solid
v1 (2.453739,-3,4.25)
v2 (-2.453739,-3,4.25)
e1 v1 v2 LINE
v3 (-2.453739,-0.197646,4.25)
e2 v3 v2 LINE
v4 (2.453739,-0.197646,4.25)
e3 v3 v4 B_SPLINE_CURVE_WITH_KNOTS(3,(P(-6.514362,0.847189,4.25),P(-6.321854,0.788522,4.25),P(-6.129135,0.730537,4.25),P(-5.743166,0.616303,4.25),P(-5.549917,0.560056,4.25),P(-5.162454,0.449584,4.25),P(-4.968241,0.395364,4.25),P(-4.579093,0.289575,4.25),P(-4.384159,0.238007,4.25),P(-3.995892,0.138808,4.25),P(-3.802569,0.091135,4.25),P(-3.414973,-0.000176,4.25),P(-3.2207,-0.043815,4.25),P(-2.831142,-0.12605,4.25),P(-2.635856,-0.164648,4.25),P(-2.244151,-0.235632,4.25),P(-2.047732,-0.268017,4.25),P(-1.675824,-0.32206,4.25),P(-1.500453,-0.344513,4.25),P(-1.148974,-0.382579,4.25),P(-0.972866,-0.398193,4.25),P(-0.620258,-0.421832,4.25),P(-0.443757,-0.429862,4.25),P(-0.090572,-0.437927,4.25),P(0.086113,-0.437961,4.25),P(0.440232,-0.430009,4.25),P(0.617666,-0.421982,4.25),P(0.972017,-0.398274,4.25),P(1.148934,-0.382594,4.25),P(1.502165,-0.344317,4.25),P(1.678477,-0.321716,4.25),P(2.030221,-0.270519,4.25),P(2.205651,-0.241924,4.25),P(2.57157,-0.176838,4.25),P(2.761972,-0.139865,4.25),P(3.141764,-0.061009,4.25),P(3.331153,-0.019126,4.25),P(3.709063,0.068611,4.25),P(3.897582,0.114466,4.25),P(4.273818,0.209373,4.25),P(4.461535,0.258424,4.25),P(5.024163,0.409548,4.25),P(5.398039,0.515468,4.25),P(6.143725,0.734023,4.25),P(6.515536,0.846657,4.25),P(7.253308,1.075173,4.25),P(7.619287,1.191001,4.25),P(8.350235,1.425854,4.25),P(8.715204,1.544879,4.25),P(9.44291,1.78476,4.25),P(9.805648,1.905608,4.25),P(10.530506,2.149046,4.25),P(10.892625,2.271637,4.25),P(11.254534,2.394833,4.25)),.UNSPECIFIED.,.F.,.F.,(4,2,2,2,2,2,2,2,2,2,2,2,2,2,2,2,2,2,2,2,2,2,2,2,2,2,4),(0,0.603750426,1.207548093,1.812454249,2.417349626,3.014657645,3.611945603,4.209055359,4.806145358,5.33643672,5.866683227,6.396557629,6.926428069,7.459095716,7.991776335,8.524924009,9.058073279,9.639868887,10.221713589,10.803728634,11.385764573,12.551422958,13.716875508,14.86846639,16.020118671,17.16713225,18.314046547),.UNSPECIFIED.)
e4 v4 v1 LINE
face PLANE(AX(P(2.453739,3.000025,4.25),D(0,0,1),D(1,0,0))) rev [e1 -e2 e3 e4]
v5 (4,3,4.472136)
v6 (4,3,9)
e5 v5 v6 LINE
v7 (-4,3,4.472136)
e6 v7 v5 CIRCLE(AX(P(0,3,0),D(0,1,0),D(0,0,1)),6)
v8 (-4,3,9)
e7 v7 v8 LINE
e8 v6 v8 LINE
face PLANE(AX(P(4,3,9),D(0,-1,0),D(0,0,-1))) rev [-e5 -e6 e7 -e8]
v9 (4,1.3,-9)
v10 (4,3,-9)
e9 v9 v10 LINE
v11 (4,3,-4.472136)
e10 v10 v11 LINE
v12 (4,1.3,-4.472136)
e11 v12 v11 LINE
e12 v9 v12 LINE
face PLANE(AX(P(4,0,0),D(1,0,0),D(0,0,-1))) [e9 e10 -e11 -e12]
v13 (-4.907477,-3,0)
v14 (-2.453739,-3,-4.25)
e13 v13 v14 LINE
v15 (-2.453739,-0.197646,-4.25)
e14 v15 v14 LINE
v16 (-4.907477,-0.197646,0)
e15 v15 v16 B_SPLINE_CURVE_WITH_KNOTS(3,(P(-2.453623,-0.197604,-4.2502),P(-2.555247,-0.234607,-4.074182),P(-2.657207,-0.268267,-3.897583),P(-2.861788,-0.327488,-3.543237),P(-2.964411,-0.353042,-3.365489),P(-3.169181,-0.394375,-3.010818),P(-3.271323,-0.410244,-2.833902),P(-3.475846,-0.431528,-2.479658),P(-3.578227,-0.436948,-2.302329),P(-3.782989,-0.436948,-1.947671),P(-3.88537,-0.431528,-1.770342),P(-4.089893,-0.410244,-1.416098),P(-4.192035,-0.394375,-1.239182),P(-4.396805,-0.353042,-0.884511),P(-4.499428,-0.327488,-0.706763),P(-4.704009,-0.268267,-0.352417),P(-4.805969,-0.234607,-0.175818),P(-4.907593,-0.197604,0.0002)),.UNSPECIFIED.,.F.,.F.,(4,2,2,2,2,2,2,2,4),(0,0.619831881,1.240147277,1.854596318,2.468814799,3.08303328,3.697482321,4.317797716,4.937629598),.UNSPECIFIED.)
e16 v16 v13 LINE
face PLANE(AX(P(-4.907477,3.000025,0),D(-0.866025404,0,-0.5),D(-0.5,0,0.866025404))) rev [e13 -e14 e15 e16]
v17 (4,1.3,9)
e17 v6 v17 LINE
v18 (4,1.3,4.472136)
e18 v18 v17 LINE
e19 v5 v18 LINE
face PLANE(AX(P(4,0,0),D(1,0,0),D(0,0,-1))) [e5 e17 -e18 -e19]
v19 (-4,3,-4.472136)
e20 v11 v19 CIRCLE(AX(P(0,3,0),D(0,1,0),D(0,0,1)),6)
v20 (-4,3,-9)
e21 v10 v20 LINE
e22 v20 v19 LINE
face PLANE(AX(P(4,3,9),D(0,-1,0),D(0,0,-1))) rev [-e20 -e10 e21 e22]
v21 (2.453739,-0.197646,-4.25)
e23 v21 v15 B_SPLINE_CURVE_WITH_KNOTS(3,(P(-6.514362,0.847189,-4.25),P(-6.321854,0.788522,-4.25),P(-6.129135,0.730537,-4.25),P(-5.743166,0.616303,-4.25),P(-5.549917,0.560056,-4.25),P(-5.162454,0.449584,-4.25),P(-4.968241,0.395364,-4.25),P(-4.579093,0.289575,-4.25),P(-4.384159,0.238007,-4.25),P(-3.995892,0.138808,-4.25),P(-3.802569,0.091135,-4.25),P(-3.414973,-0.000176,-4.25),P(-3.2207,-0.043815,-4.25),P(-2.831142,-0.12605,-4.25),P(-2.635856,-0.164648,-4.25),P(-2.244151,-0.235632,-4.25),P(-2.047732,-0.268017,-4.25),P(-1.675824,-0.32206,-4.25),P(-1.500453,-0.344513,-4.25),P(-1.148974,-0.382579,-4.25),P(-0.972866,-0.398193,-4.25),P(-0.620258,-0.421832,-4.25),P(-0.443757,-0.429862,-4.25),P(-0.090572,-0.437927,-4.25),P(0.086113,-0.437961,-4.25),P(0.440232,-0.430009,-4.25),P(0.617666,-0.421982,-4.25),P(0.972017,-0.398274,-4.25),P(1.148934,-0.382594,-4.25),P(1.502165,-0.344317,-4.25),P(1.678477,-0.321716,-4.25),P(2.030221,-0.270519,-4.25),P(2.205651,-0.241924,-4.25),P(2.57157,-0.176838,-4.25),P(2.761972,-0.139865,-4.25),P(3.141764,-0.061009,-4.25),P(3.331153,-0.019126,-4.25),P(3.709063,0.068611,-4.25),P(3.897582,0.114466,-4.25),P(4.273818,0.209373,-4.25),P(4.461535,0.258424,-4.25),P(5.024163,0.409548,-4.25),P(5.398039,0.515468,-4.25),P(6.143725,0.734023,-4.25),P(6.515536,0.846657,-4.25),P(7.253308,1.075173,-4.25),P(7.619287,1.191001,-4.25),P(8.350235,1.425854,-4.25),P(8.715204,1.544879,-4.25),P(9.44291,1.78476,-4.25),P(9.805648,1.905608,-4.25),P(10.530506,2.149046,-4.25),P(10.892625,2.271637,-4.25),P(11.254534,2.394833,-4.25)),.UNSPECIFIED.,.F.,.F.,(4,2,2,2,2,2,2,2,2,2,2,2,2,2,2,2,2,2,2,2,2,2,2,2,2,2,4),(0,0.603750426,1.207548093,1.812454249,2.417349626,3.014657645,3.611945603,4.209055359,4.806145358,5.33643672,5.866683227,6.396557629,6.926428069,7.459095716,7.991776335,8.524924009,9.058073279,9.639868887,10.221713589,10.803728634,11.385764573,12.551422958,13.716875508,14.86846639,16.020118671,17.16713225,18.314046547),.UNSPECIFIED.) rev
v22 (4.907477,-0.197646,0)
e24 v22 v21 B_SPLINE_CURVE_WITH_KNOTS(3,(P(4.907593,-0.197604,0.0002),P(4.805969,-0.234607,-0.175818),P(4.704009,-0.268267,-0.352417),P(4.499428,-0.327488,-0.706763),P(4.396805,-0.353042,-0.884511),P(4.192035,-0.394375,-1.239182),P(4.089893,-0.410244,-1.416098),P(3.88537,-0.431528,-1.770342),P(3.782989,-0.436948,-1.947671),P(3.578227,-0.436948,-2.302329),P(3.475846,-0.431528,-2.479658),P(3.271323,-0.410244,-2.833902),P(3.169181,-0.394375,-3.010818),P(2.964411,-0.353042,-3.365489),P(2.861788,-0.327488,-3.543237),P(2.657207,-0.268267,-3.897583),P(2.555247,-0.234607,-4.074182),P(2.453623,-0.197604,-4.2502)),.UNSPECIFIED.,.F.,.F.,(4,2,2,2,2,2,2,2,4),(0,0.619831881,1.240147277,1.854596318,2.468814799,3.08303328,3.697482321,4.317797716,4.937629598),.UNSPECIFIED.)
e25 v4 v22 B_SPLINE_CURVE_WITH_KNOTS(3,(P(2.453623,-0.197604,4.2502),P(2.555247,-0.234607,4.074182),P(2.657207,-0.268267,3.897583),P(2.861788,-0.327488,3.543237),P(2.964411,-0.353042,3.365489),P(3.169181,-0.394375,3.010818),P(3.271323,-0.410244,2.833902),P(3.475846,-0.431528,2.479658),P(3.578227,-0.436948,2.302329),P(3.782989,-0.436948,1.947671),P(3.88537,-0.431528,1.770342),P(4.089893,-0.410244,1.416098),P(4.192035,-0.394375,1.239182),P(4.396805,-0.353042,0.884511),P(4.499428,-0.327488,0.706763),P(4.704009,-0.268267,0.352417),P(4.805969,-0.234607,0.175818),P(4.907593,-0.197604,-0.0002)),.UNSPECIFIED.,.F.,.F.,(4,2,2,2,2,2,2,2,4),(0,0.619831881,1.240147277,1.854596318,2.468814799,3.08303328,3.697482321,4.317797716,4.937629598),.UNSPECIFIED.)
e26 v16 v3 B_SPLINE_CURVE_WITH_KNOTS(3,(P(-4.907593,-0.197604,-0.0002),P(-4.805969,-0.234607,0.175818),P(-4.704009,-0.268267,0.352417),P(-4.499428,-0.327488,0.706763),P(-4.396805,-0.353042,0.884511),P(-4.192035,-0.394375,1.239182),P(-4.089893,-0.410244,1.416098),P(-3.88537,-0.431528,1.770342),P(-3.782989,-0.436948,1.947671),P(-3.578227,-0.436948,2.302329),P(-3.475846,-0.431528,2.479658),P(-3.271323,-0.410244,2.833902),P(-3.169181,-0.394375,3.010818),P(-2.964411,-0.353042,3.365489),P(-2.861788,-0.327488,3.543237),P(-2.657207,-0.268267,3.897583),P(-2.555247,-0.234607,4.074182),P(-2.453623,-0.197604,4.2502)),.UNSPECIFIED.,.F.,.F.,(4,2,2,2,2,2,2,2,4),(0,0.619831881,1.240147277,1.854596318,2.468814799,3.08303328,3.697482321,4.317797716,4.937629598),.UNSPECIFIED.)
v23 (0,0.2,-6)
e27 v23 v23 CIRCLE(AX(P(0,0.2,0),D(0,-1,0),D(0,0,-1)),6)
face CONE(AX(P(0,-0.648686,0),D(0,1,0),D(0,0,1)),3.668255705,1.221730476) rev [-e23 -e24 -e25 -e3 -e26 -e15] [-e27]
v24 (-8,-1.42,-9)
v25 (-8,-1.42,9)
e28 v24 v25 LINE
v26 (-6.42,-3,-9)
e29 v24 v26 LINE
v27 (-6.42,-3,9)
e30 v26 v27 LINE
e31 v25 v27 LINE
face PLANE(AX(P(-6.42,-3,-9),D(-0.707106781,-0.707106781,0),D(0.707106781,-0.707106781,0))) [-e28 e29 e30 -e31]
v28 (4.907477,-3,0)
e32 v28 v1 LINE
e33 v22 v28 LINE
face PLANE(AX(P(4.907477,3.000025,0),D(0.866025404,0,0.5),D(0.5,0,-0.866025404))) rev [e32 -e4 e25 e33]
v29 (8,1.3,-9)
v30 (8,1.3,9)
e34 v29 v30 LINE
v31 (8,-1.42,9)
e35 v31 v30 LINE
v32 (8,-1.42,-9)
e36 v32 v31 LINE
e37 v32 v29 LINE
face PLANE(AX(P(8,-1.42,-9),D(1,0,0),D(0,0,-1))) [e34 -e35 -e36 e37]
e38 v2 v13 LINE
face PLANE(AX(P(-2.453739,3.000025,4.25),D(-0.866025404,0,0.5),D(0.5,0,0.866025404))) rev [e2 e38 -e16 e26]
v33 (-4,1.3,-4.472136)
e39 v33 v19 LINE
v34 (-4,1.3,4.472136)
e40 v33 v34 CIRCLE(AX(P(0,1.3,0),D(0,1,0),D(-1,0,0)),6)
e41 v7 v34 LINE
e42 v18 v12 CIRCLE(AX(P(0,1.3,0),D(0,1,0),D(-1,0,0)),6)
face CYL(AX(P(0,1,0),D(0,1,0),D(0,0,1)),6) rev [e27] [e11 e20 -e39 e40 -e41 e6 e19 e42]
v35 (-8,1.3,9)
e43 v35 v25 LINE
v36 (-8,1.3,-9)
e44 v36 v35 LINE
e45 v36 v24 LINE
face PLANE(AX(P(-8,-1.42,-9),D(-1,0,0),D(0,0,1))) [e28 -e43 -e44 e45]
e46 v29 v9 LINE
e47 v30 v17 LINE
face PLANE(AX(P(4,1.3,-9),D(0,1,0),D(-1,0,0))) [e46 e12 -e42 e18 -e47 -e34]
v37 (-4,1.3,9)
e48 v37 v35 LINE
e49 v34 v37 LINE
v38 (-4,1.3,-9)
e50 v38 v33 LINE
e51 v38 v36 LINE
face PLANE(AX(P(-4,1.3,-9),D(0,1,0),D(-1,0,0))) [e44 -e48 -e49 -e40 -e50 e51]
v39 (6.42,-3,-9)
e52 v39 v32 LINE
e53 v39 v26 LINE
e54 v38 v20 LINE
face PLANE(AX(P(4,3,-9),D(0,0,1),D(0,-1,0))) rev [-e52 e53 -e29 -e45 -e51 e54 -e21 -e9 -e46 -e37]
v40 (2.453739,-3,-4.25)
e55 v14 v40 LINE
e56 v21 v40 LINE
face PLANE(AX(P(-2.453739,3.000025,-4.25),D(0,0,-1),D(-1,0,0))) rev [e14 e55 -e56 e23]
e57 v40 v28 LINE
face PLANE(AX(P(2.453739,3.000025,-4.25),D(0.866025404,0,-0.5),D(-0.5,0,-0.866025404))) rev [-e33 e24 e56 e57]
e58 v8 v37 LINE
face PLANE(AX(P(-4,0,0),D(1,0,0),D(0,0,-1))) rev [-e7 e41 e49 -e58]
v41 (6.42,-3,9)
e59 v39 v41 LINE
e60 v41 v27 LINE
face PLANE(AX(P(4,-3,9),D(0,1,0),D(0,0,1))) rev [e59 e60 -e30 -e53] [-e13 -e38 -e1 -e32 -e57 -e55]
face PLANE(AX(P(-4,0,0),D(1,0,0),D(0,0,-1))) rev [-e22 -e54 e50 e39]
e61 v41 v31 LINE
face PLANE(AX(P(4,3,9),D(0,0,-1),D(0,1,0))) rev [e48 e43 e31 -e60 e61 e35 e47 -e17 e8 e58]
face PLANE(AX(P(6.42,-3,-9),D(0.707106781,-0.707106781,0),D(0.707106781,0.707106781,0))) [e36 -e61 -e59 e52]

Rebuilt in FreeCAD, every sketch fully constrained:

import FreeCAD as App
import Part
import Sketcher
from FreeCAD import Vector
Q = App.Units.Quantity

doc = App.newDocument("Part")
body = doc.addObject("PartDesign::Body", "Body")

# Sketch on YZ plane
sketch1 = body.newObject("Sketcher::SketchObject", "Sketch")
sketch1.AttachmentSupport = (doc.getObject("YZ_Plane"), [""])
sketch1.MapMode = "FlatFace"
sketch1.addGeometry([
    Part.LineSegment(Vector(3, 9, 0), Vector(-3, 9, 0)),
    Part.LineSegment(Vector(-3, 9, 0), Vector(-3, -9, 0)),
    Part.LineSegment(Vector(-3, -9, 0), Vector(3, -9, 0)),
    Part.LineSegment(Vector(3, -9, 0), Vector(3, 9, 0)),
], False)
sketch1.addConstraint([
    Sketcher.Constraint("Coincident", 0, 2, 1, 1),
    Sketcher.Constraint("Coincident", 1, 2, 2, 1),
    Sketcher.Constraint("Coincident", 2, 2, 3, 1),
    Sketcher.Constraint("Coincident", 3, 2, 0, 1),
    Sketcher.Constraint("Horizontal", 0),
    Sketcher.Constraint("Vertical", 1),
    Sketcher.Constraint("Horizontal", 2),
    Sketcher.Constraint("Vertical", 3),
    Sketcher.Constraint("Symmetric", 0, 2, 2, 2, -1, 1),
    Sketcher.Constraint("DistanceX", 0, 2, 0, 1, Q("6 mm")),
    Sketcher.Constraint("DistanceY", 1, 2, 1, 1, Q("18 mm")),
])
pad1 = body.newObject("PartDesign::Pad", "Pad")
pad1.Profile = sketch1
pad1.Length = 8
pad1.Midplane = True

# Sketch on XY plane
sketch2 = body.newObject("Sketcher::SketchObject", "Sketch001")
sketch2.AttachmentSupport = (doc.getObject("XY_Plane"), [""])
sketch2.MapMode = "FlatFace"
sketch2.AttachmentOffset = App.Placement(Vector(0, 0, 9), App.Rotation())
sketch2.addGeometry([
    Part.LineSegment(Vector(-4, -3, 0), Vector(-4, 1.3, 0)),  # 0
    Part.LineSegment(Vector(-4, 1.3, 0), Vector(-8, 1.3, 0)),  # 1
    Part.LineSegment(Vector(-8, 1.3, 0), Vector(-8, -1.42, 0)),  # 2
    Part.LineSegment(Vector(-8, -1.42, 0), Vector(-6.42, -3, 0)),  # 3
    Part.LineSegment(Vector(-6.42, -3, 0), Vector(-4, -3, 0)),  # 4
    Part.LineSegment(Vector(8, -1.42, 0), Vector(8, 1.3, 0)),  # 5
    Part.LineSegment(Vector(8, 1.3, 0), Vector(4, 1.3, 0)),  # 6
    Part.LineSegment(Vector(4, 1.3, 0), Vector(4, -3, 0)),  # 7
    Part.LineSegment(Vector(4, -3, 0), Vector(6.42, -3, 0)),  # 8
    Part.LineSegment(Vector(6.42, -3, 0), Vector(8, -1.42, 0)),  # 9
], False)
sketch2.addConstraint([
    Sketcher.Constraint("Coincident", 0, 2, 1, 1),
    Sketcher.Constraint("Coincident", 1, 2, 2, 1),
    Sketcher.Constraint("Coincident", 2, 2, 3, 1),
    Sketcher.Constraint("Coincident", 3, 2, 4, 1),
    Sketcher.Constraint("Coincident", 4, 2, 0, 1),
    Sketcher.Constraint("Coincident", 5, 2, 6, 1),
    Sketcher.Constraint("Coincident", 6, 2, 7, 1),
    Sketcher.Constraint("Coincident", 7, 2, 8, 1),
    Sketcher.Constraint("Coincident", 8, 2, 9, 1),
    Sketcher.Constraint("Coincident", 9, 2, 5, 1),
    Sketcher.Constraint("Vertical", 0),
    Sketcher.Constraint("Horizontal", 1),
    Sketcher.Constraint("Vertical", 2),
    Sketcher.Constraint("Horizontal", 4),
    Sketcher.Constraint("Vertical", 5),
    Sketcher.Constraint("Horizontal", 6),
    Sketcher.Constraint("Vertical", 7),
    Sketcher.Constraint("Horizontal", 8),
    Sketcher.Constraint("Symmetric", 1, 2, 5, 2, -2),
    Sketcher.Constraint("Symmetric", 4, 2, 7, 2, -2),
    Sketcher.Constraint("Perpendicular", 3, 9),
    Sketcher.Constraint("Horizontal", 2, 2, 9, 2),
    Sketcher.Constraint("Equal", 4, 8),
    Sketcher.Constraint("DistanceX", 1, 2, 1, 1, Q("4 mm")),
    Sketcher.Constraint("DistanceY", 0, 1, 0, 2, Q("4.3 mm")),
    Sketcher.Constraint("DistanceX", 0, 2, -1, 1, Q("4 mm")),
    Sketcher.Constraint("DistanceY", 3, 2, -1, 1, Q("3 mm")),
    Sketcher.Constraint("DistanceX", 4, 1, 4, 2, Q("2.42 mm")),
])
pad2 = body.newObject("PartDesign::Pad", "Pad001")
pad2.Profile = sketch2
pad2.Length = 18
pad2.Reversed = True

# Sketch on XZ plane
sketch3 = body.newObject("Sketcher::SketchObject", "Sketch002")
sketch3.AttachmentSupport = (doc.getObject("XZ_Plane"), [""])
sketch3.MapMode = "FlatFace"
sketch3.AttachmentOffset = App.Placement(Vector(0, 0, -3), App.Rotation())
sketch3.addGeometry(Part.Circle(Vector(0, 0, 0), Vector(0, 0, 1), 6), False)
sketch3.addConstraint([
    Sketcher.Constraint("Coincident", 0, 3, -1, 1),
    Sketcher.Constraint("Diameter", 0, Q("12 mm")),
])
pocket1 = body.newObject("PartDesign::Pocket", "Pocket")
pocket1.Profile = sketch3
pocket1.Length = 2
pocket1.Reversed = True

# Sketch on XZ plane
sketch4 = body.newObject("Sketcher::SketchObject", "Sketch003")
sketch4.AttachmentSupport = (doc.getObject("XZ_Plane"), [""])
sketch4.MapMode = "FlatFace"
sketch4.AttachmentOffset = App.Placement(Vector(0, 0, 3), App.Rotation())
sketch4.addGeometry([
    Part.LineSegment(Vector(-2.453739, 4.25, 0), Vector(-4.907477, 0, 0)),  # 0
    Part.LineSegment(Vector(-4.907477, 0, 0), Vector(-2.453739, -4.25, 0)),  # 1
    Part.LineSegment(Vector(-2.453739, -4.25, 0), Vector(2.453739, -4.25, 0)),  # 2
    Part.LineSegment(Vector(2.453739, -4.25, 0), Vector(4.907477, 0, 0)),  # 3
    Part.LineSegment(Vector(4.907477, 0, 0), Vector(2.453739, 4.25, 0)),  # 4
    Part.LineSegment(Vector(2.453739, 4.25, 0), Vector(-2.453739, 4.25, 0)),  # 5
], False)
sketch4.addConstraint([
    Sketcher.Constraint("Coincident", 0, 2, 1, 1),
    Sketcher.Constraint("Coincident", 1, 2, 2, 1),
    Sketcher.Constraint("Coincident", 2, 2, 3, 1),
    Sketcher.Constraint("Coincident", 3, 2, 4, 1),
    Sketcher.Constraint("Coincident", 4, 2, 5, 1),
    Sketcher.Constraint("Coincident", 5, 2, 0, 1),
    Sketcher.Constraint("Horizontal", 2),
    Sketcher.Constraint("Horizontal", 5),
    Sketcher.Constraint("Symmetric", 0, 2, 3, 2, -1, 1),
    Sketcher.Constraint("Symmetric", 1, 2, 4, 2, -1, 1),
    Sketcher.Constraint("PointOnObject", 0, 2, -1),
    Sketcher.Constraint("Parallel", 0, 3),
    Sketcher.Constraint("Vertical", 2, 2, 4, 2),
    Sketcher.Constraint("Angle", 0, Q("-120 deg")),
    Sketcher.Constraint("DistanceY", 2, 2, 4, 2, Q("8.5 mm")),
    Sketcher.Constraint("DistanceX", 2, 1, 2, 2, Q("4.907477 mm")),
])
pocket2 = body.newObject("PartDesign::Pocket", "Pocket001")
pocket2.Profile = sketch4
pocket2.Type = "ThroughAll"

# Sketch on YZ plane
sketch5 = body.newObject("Sketcher::SketchObject", "Sketch004")
sketch5.AttachmentSupport = (doc.getObject("YZ_Plane"), [""])
sketch5.MapMode = "FlatFace"
sketch5.addGeometry([
    Part.LineSegment(Vector(-0.648686, -3.668256, 0), Vector(0.2, -6, 0)),
    Part.LineSegment(Vector(0.2, -6, 0), Vector(1, -6, 0)),
    Part.LineSegment(Vector(1, -6, 0), Vector(1, -3.668256, 0)),
    Part.LineSegment(Vector(1, -3.668256, 0), Vector(-0.648686, -3.668256, 0)),
], False)
sketch5.addConstraint([
    Sketcher.Constraint("Coincident", 0, 2, 1, 1),
    Sketcher.Constraint("Coincident", 1, 2, 2, 1),
    Sketcher.Constraint("Coincident", 2, 2, 3, 1),
    Sketcher.Constraint("Coincident", 3, 2, 0, 1),
    Sketcher.Constraint("Horizontal", 1),
    Sketcher.Constraint("Vertical", 2),
    Sketcher.Constraint("Horizontal", 3),
    Sketcher.Constraint("Angle", 0, Q("-70 deg")),
    Sketcher.Constraint("DistanceX", 1, 1, 1, 2, Q("0.8 mm")),
    Sketcher.Constraint("DistanceY", 0, 2, -1, 1, Q("6 mm")),
    Sketcher.Constraint("DistanceX", -1, 1, 1, 2, Q("1 mm")),
    Sketcher.Constraint("Distance", 0, Q("2.48139 mm")),
])
groove = body.newObject("PartDesign::Groove", "Groove")
groove.Profile = sketch5
groove.ReferenceAxis = (sketch5, ["H_Axis"])
groove.Angle = 360

doc.recompute()
